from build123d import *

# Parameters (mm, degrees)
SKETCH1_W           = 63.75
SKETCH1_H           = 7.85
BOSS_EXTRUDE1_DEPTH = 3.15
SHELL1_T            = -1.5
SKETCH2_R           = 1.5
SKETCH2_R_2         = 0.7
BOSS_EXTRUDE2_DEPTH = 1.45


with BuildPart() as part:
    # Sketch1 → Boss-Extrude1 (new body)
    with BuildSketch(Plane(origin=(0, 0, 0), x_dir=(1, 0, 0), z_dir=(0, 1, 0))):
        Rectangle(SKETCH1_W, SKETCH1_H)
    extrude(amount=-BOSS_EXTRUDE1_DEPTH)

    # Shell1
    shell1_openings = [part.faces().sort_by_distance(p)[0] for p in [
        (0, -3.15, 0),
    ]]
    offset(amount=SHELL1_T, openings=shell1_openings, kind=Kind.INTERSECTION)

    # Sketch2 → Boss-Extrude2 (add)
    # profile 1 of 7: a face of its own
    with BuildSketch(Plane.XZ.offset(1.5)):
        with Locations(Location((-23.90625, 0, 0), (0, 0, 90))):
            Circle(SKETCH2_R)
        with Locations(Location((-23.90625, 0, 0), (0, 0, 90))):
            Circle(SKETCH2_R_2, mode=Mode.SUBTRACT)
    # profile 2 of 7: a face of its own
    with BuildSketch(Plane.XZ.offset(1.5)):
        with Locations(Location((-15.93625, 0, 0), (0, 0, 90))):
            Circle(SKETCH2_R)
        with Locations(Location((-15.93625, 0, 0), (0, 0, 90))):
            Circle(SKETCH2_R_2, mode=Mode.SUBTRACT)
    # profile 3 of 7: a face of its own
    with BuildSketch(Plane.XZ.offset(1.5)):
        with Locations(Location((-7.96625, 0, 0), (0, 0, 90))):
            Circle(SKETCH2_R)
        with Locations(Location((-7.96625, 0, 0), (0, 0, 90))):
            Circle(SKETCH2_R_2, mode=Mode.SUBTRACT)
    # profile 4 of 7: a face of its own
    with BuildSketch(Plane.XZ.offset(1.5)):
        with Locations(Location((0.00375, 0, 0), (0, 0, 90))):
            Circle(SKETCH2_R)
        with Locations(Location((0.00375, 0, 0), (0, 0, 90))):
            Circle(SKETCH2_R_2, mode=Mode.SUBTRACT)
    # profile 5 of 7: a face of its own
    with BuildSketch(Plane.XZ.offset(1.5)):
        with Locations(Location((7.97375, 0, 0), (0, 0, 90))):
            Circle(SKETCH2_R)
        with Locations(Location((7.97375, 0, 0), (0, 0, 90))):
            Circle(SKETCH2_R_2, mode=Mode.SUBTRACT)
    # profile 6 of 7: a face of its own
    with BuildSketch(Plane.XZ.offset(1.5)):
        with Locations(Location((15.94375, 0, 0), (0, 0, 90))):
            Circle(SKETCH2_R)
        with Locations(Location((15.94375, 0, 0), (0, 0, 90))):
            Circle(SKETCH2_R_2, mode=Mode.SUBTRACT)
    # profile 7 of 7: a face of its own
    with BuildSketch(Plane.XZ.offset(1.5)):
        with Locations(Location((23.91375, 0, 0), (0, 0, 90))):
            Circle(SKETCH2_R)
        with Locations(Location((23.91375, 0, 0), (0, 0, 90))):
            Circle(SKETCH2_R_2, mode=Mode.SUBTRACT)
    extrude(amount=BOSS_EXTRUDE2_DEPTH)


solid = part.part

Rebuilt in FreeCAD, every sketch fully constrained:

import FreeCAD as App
import Part
import Sketcher
from FreeCAD import Vector
Q = App.Units.Quantity


def faces_at(feature, points):
    """Names of the faces that lie closest to the given points."""
    faces = feature.Shape.Faces
    near = lambda p: min(range(len(faces)), key=lambda i: faces[i].distToShape(Part.Vertex(*p))[0])
    return sorted({f"Face{near(p) + 1}" for p in points})

doc = App.newDocument("Part")
body = doc.addObject("PartDesign::Body", "Body")

# Sketch on XZ plane
sketch1 = body.newObject("Sketcher::SketchObject", "Sketch")
sketch1.AttachmentSupport = (doc.getObject("XZ_Plane"), [""])
sketch1.MapMode = "FlatFace"
sketch1.addGeometry([
    Part.LineSegment(Vector(-32, -4, 0), Vector(-32, 4, 0)),
    Part.LineSegment(Vector(-32, 4, 0), Vector(32, 4, 0)),
    Part.LineSegment(Vector(32, 4, 0), Vector(32, -4, 0)),
    Part.LineSegment(Vector(32, -4, 0), Vector(-32, -4, 0)),
], False)
sketch1.addConstraint([
    Sketcher.Constraint("Coincident", 0, 2, 1, 1),
    Sketcher.Constraint("Coincident", 1, 2, 2, 1),
    Sketcher.Constraint("Coincident", 2, 2, 3, 1),
    Sketcher.Constraint("Coincident", 3, 2, 0, 1),
    Sketcher.Constraint("Vertical", 0),
    Sketcher.Constraint("Horizontal", 1),
    Sketcher.Constraint("Vertical", 2),
    Sketcher.Constraint("Horizontal", 3),
    Sketcher.Constraint("Symmetric", 0, 2, 2, 2, -1, 1),
    Sketcher.Constraint("DistanceX", 1, 1, 1, 2, Q("63.75 mm")),
    Sketcher.Constraint("DistanceY", 0, 1, 0, 2, Q("7.85 mm")),
])
pad1 = body.newObject("PartDesign::Pad", "Pad")
pad1.Profile = sketch1
pad1.Length = 3.15
doc.recompute()

thickness = body.newObject("PartDesign::Thickness", "Thickness")
thickness.Base = (pad1, faces_at(pad1, [(0, -3.15, 0)]))
thickness.Value = 1.5
thickness.Reversed = True
thickness.Join = "Intersection"

# Sketch on XZ plane
sketch2 = body.newObject("Sketcher::SketchObject", "Sketch001")
sketch2.AttachmentSupport = (doc.getObject("XZ_Plane"), [""])
sketch2.MapMode = "FlatFace"
sketch2.AttachmentOffset = App.Placement(Vector(0, 0, 1.5), App.Rotation())
sketch2.addGeometry([
    Part.Circle(Vector(-23.9, 0, 0), Vector(0, 0, 1), 1.5),  # 0
    Part.Circle(Vector(-23.9, 0, 0), Vector(0, 0, 1), 0.7),  # 1
    Part.Circle(Vector(-15.9, 0, 0), Vector(0, 0, 1), 1.5),  # 2
    Part.Circle(Vector(-15.9, 0, 0), Vector(0, 0, 1), 0.7),  # 3
    Part.Circle(Vector(-8, 0, 0), Vector(0, 0, 1), 1.5),  # 4
    Part.Circle(Vector(-8, 0, 0), Vector(0, 0, 1), 0.7),  # 5
    Part.Circle(Vector(0, 0, 0), Vector(0, 0, 1), 1.5),  # 6
    Part.Circle(Vector(0, 0, 0), Vector(0, 0, 1), 0.7),  # 7
    Part.Circle(Vector(8, 0, 0), Vector(0, 0, 1), 1.5),  # 8
    Part.Circle(Vector(8, 0, 0), Vector(0, 0, 1), 0.7),  # 9
    Part.Circle(Vector(15.9, 0, 0), Vector(0, 0, 1), 1.5),  # 10
    Part.Circle(Vector(15.9, 0, 0), Vector(0, 0, 1), 0.7),  # 11
    Part.Circle(Vector(23.9, 0, 0), Vector(0, 0, 1), 1.5),  # 12
    Part.Circle(Vector(23.9, 0, 0), Vector(0, 0, 1), 0.7),  # 13
], False)
sketch2.addConstraint([
    Sketcher.Constraint("Coincident", 1, 3, 0, 3),
    Sketcher.Constraint("Coincident", 3, 3, 2, 3),
    Sketcher.Constraint("Coincident", 5, 3, 4, 3),
    Sketcher.Constraint("Coincident", 7, 3, 6, 3),
    Sketcher.Constraint("Coincident", 9, 3, 8, 3),
    Sketcher.Constraint("Coincident", 11, 3, 10, 3),
    Sketcher.Constraint("Coincident", 13, 3, 12, 3),
    Sketcher.Constraint("Equal", 0, 2),
    Sketcher.Constraint("Equal", 1, 3),
    Sketcher.Constraint("Equal", 2, 4),
    Sketcher.Constraint("Equal", 3, 5),
    Sketcher.Constraint("Equal", 4, 6),
    Sketcher.Constraint("Equal", 5, 7),
    Sketcher.Constraint("Equal", 6, 8),
    Sketcher.Constraint("Equal", 7, 9),
    Sketcher.Constraint("Equal", 8, 10),
    Sketcher.Constraint("Equal", 9, 11),
    Sketcher.Constraint("Equal", 10, 12),
    Sketcher.Constraint("Equal", 11, 13),
    Sketcher.Constraint("PointOnObject", 0, 3, -1),
    Sketcher.Constraint("PointOnObject", 2, 3, -1),
    Sketcher.Constraint("PointOnObject", 4, 3, -1),
    Sketcher.Constraint("PointOnObject", 6, 3, -1),
    Sketcher.Constraint("PointOnObject", 8, 3, -1),
    Sketcher.Constraint("PointOnObject", 10, 3, -1),
    Sketcher.Constraint("PointOnObject", 12, 3, -1),
    Sketcher.Constraint("Diameter", 0, Q("3 mm")),
    Sketcher.Constraint("Diameter", 1, Q("1.4 mm")),
    Sketcher.Constraint("DistanceX", 0, 3, 2, 3, Q("7.97 mm")),
    Sketcher.Constraint("DistanceX", 2, 3, 4, 3, Q("7.97 mm")),
    Sketcher.Constraint("DistanceX", 4, 3, 6, 3, Q("7.97 mm")),
    Sketcher.Constraint("DistanceX", 6, 3, 8, 3, Q("7.97 mm")),
    Sketcher.Constraint("DistanceX", 8, 3, 10, 3, Q("7.97 mm")),
    Sketcher.Constraint("DistanceX", 10, 3, 12, 3, Q("7.97 mm")),
    Sketcher.Constraint("DistanceX", 0, 3, -1, 1, Q("23.90625 mm")),
])
pad2 = body.newObject("PartDesign::Pad", "Pad001")
pad2.Profile = sketch2
pad2.Length = 1.45

doc.recompute()
